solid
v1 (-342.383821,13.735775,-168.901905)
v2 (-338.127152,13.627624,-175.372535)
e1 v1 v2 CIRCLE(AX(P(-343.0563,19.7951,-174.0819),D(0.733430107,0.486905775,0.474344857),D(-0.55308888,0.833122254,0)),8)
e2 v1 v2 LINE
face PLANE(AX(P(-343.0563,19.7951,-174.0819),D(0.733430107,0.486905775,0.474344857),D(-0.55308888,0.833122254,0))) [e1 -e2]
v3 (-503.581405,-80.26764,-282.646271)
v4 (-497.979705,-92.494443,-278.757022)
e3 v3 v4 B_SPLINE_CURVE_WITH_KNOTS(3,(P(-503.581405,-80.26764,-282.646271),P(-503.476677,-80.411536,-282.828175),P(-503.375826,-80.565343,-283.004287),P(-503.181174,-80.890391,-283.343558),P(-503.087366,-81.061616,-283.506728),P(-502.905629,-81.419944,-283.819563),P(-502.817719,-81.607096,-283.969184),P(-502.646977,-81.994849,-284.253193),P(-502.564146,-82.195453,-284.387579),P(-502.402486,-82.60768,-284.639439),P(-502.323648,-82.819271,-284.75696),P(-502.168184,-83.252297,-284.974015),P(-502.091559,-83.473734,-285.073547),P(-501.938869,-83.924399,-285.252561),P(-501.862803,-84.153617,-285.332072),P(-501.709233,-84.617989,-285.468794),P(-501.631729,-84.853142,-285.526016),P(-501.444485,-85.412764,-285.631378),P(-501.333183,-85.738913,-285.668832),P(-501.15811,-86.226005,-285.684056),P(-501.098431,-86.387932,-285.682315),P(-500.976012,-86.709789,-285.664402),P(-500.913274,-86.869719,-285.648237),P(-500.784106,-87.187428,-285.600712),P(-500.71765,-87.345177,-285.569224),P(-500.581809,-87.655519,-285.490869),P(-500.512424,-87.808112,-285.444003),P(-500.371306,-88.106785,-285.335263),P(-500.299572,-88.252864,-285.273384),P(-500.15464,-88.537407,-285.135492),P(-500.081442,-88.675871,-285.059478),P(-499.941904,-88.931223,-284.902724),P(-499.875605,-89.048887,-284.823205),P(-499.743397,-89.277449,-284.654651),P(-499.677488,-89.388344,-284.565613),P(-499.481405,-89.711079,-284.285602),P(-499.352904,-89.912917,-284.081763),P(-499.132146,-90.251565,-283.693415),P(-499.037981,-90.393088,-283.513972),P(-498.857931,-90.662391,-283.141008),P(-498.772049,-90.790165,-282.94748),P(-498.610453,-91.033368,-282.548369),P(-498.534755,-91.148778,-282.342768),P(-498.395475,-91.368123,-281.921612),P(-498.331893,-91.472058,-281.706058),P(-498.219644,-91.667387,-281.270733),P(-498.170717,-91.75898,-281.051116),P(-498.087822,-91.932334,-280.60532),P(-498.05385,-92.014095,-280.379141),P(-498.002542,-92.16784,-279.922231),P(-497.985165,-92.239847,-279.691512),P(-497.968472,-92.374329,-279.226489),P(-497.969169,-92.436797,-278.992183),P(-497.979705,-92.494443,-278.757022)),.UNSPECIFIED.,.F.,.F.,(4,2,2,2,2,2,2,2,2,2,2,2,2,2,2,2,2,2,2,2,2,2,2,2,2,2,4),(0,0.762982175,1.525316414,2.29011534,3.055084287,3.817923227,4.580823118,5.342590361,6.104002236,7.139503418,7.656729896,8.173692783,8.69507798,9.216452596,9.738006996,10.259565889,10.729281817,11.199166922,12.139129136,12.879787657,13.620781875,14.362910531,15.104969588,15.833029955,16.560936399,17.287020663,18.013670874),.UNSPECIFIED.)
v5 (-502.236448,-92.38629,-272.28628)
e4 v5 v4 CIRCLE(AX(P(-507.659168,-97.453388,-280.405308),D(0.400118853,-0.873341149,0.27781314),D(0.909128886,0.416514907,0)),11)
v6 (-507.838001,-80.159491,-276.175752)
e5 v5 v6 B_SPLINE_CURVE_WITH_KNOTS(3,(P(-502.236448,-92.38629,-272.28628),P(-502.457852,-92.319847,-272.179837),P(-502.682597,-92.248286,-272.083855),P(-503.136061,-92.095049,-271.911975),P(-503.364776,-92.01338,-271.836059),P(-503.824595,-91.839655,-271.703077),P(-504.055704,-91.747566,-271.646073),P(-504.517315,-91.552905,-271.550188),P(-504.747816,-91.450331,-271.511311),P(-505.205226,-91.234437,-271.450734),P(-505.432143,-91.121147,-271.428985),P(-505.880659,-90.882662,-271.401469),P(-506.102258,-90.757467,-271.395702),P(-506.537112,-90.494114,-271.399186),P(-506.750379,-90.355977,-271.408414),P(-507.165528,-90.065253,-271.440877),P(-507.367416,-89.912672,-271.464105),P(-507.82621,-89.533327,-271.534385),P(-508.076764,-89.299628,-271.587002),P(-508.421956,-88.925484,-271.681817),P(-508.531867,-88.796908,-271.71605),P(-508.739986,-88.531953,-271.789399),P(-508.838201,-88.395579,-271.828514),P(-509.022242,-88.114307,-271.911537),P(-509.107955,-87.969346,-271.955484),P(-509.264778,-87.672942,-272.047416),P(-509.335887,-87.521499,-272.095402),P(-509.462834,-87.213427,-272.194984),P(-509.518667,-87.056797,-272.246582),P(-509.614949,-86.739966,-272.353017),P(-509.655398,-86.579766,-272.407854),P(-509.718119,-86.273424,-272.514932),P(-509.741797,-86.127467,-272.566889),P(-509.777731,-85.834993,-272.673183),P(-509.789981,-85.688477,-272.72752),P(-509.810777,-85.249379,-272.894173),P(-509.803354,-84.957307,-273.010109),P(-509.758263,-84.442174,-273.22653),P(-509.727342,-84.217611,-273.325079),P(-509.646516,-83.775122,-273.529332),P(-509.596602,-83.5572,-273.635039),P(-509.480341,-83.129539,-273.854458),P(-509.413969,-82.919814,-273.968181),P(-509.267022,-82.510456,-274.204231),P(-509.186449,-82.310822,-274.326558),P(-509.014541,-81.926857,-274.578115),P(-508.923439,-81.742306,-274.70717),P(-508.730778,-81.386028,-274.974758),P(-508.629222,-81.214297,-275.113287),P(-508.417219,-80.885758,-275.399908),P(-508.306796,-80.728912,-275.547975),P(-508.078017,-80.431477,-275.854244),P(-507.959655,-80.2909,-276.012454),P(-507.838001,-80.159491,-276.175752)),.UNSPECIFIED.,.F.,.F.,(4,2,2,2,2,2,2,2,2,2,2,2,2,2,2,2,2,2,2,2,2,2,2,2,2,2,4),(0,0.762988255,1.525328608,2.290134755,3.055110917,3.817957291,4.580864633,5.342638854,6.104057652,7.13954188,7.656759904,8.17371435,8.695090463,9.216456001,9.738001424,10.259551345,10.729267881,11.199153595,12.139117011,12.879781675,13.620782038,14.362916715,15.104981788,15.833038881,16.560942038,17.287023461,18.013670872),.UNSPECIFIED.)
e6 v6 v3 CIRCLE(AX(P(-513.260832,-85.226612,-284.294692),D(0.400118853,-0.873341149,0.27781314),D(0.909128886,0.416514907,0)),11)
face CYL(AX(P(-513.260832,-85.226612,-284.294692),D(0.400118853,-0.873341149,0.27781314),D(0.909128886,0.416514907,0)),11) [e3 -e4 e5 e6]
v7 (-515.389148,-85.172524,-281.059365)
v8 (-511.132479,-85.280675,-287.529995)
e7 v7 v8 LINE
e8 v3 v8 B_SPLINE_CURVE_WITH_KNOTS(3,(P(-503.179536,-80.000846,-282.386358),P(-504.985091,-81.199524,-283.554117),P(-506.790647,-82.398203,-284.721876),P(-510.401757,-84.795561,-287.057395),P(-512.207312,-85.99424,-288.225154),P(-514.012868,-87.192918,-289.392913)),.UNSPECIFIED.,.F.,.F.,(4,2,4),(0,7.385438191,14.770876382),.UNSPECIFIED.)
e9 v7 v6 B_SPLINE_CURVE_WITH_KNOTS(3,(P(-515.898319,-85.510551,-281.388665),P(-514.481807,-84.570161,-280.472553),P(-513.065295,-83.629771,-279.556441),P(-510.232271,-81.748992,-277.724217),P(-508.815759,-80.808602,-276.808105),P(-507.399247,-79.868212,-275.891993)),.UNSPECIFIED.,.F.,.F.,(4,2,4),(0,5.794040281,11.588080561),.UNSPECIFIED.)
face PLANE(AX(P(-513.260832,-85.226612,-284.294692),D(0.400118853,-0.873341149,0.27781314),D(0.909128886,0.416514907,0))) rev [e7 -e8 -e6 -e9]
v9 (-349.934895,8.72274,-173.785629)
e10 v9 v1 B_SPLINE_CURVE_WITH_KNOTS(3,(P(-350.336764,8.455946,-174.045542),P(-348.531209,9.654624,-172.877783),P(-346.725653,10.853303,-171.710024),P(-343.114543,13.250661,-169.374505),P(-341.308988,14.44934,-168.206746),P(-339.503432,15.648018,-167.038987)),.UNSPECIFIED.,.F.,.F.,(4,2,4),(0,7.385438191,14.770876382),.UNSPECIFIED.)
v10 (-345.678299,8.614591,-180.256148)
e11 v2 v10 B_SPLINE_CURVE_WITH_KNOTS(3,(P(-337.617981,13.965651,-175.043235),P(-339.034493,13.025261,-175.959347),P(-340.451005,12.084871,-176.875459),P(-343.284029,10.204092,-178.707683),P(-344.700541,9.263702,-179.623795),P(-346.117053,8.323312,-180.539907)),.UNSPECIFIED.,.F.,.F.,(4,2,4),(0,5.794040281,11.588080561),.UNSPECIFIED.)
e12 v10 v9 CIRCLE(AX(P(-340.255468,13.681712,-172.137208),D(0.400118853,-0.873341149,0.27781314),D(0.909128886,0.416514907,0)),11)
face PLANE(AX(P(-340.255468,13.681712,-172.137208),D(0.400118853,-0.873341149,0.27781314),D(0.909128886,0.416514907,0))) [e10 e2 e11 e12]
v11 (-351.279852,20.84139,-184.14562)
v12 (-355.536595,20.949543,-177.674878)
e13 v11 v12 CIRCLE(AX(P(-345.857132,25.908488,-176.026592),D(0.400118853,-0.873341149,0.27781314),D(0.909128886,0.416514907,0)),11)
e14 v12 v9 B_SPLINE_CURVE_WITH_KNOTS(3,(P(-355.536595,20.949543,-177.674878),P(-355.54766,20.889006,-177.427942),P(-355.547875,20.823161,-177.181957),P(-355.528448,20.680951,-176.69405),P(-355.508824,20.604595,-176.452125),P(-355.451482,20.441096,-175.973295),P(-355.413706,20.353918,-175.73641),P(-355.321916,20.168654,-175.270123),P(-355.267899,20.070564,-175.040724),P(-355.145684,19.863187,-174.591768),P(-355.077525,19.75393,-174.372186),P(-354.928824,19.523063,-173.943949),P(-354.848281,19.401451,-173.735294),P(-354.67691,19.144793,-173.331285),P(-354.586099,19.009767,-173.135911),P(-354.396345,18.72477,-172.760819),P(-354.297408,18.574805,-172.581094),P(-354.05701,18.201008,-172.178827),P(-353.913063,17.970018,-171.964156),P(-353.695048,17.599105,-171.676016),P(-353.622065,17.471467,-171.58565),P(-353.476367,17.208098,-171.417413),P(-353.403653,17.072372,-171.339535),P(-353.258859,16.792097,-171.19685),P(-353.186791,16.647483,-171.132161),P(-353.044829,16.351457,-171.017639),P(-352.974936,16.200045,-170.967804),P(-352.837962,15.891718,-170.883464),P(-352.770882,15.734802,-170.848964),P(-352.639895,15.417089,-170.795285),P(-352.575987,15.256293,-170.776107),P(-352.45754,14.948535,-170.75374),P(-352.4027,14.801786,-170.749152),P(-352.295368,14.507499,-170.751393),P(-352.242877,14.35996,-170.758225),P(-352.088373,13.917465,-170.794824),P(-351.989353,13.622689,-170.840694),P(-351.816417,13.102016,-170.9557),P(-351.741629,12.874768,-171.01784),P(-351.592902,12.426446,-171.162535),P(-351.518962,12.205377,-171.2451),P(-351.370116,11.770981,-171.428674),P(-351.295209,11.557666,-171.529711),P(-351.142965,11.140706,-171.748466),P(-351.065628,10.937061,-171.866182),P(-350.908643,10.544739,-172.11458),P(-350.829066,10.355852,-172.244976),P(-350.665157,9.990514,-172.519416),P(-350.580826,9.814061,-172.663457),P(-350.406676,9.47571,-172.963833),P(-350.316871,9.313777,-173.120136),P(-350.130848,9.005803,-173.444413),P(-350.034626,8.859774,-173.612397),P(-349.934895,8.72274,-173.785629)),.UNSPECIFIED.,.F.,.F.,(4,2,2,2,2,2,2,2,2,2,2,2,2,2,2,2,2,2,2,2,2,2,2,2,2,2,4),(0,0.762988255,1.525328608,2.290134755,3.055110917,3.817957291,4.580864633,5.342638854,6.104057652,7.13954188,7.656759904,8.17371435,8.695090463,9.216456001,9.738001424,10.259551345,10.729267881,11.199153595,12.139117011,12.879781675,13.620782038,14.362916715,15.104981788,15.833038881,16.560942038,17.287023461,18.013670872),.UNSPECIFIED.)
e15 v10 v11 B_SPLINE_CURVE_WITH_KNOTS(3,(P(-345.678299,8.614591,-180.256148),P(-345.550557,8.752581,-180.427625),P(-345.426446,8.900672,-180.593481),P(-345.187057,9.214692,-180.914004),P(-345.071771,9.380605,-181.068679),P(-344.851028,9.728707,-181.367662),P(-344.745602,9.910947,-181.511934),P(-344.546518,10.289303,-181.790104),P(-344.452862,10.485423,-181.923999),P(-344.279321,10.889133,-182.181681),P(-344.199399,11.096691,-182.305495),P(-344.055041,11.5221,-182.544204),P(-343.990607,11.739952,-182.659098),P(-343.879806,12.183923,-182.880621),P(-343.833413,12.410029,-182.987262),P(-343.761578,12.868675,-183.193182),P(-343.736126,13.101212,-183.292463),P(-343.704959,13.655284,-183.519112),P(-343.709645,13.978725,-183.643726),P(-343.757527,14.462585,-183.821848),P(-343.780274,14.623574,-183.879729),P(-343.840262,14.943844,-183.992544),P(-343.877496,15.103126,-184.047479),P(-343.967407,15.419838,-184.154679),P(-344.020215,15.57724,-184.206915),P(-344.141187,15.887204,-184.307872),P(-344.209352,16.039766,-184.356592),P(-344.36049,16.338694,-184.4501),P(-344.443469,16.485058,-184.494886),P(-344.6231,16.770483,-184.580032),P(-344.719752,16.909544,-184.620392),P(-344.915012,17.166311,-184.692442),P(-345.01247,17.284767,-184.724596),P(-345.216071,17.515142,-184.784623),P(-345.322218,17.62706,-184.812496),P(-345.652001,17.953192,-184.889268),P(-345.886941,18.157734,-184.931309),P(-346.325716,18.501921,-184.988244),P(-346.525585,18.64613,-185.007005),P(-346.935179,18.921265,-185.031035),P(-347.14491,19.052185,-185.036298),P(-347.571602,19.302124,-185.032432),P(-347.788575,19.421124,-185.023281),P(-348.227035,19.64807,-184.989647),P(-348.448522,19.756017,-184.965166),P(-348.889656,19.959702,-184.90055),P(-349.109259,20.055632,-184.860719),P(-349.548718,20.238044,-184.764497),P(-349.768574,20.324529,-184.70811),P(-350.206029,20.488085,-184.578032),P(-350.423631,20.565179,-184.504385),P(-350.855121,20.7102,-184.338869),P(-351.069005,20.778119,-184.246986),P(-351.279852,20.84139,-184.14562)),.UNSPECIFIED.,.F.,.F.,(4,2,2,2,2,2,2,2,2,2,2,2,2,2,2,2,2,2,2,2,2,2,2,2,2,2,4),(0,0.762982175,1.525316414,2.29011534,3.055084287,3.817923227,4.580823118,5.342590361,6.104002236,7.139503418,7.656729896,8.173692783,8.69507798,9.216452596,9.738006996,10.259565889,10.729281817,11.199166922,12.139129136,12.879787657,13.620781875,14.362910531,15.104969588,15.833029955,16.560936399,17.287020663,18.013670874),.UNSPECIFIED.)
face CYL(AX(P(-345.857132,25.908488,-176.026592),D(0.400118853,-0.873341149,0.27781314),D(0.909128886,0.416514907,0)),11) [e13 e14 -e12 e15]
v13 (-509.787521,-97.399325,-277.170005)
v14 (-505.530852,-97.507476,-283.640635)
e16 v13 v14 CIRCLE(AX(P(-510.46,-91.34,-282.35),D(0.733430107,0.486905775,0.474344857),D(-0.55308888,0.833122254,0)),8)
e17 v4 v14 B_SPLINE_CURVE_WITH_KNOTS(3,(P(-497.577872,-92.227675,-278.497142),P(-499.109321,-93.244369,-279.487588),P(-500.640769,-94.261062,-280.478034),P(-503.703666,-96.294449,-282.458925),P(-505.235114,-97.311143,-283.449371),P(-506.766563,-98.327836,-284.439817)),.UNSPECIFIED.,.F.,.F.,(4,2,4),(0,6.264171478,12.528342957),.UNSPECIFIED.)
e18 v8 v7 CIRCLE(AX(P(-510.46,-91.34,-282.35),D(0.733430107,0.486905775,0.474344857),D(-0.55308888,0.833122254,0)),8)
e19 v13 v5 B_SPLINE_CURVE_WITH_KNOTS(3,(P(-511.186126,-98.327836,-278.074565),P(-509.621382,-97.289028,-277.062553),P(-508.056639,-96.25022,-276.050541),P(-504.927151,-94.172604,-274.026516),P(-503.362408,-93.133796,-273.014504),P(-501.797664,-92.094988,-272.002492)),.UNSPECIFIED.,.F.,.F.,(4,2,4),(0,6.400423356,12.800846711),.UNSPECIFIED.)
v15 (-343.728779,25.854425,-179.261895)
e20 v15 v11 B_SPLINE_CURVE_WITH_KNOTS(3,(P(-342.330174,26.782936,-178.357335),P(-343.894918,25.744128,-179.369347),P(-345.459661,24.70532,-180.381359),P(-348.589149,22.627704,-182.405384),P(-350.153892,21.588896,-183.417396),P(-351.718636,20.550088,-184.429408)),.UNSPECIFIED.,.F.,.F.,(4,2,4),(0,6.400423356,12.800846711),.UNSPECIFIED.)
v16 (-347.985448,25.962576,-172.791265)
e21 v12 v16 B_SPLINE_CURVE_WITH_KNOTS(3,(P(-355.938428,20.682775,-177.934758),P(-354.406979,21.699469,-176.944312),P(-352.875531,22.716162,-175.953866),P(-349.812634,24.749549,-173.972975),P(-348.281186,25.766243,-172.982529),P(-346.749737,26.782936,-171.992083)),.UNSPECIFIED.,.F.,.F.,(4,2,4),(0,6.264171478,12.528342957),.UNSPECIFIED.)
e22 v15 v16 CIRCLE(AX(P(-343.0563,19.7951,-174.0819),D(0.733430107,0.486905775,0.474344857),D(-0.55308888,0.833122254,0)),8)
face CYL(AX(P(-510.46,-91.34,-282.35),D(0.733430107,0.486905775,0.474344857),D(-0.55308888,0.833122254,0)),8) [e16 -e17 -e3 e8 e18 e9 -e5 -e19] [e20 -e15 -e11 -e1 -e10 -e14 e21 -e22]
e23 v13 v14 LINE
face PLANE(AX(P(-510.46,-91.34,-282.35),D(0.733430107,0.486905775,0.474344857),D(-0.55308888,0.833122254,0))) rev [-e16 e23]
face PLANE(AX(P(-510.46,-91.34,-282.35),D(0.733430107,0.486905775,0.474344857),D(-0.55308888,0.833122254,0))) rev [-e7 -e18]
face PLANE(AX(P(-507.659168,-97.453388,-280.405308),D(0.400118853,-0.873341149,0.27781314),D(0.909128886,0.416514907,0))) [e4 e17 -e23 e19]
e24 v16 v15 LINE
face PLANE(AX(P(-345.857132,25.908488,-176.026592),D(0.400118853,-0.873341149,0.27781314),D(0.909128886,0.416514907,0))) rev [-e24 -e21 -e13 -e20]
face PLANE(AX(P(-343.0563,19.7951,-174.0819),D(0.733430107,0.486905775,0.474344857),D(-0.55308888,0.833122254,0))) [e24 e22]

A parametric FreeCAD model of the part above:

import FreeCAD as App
import Part
import Sketcher

V = App.Vector
Q = App.Units.Quantity

doc = App.newDocument("Part")
body = doc.addObject("PartDesign::Body", "Body")

# Sketch on an angled plane
sketch1 = doc.addObject("Sketcher::SketchObject", "Sketch")
body.addObject(sketch1)
sketch1.Placement = App.Placement(V(-510.46, -91.34, -282.35), App.Rotation(V(-0.55308888, 0.833122254, 0), V(-0.395187256, -0.262354866, 0.880339114), V(0.733430107, 0.486905775, 0.474344857), "ZXY"))
sketch1.addGeometry(Part.Circle(V(0, 0, 0), V(0, 0, 1), 8), False)
sketch1.addConstraint(Sketcher.Constraint("Coincident", 0, 3, -1, 1))
sketch1.addConstraint(Sketcher.Constraint("Diameter", 0, Q("16 mm")))

# Sketch on an angled plane
sketch2 = doc.addObject("Sketcher::SketchObject", "Sketch001")
body.addObject(sketch2)
sketch2.Placement = App.Placement(V(-114.064827, 171.816771, 0), App.Rotation(V(0.833122254, 0.55308888, 0), V(0, 0, 0.999999999), V(0.55308888, -0.833122254, 0), "ZXY"))
sketch2.addGeometry(Part.LineSegment(V(-476, -282, 0), V(-275, -174, 0)), False)
sketch2.addConstraint(Sketcher.Constraint("DistanceY", 0, 1, -1, 1, Q("282.35 mm")))
sketch2.addConstraint(Sketcher.Constraint("DistanceY", 0, 2, -1, 1, Q("174.0819 mm")))
sketch2.addConstraint(Sketcher.Constraint("Distance", 0, Q("228.247652 mm")))
sketch2.addConstraint(Sketcher.Constraint("DistanceX", 0, 2, -1, 1, Q("274.859388 mm")))
doc.recompute()

additivepipe = doc.addObject("PartDesign::AdditivePipe", "AdditivePipe")
body.addObject(additivepipe)
additivepipe.Profile = sketch1
additivepipe.Spine = (sketch2, ["Edge1"])

# Sketch on an angled plane
sketch3 = doc.addObject("Sketcher::SketchObject", "Sketch002")
body.addObject(sketch3)
sketch3.Placement = App.Placement(V(-513.260832, -85.226612, -284.294692), App.Rotation(V(-0.909128886, -0.416514907, 0), V(0.115713314, -0.25256795, -0.960635133), V(0.400118853, -0.873341149, 0.27781314), "ZXY"))
sketch3.addGeometry(Part.Circle(V(0, 0, 0), V(0, 0, 1), 11), False)
sketch3.addConstraint(Sketcher.Constraint("Coincident", 0, 3, -1, 1))
sketch3.addConstraint(Sketcher.Constraint("Diameter", 0, Q("22 mm")))

# Sketch on an angled plane
sketch4 = doc.addObject("Sketcher::SketchObject", "Sketch003")
body.addObject(sketch4)
sketch4.Placement = App.Placement(V(-456.490345, -209.1398, 0), App.Rotation(V(0.416514907, -0.909128886, 0), V(0, 0, 0.999999999), V(-0.909128886, -0.416514907, 0), "ZXY"))
sketch4.addGeometry(Part.LineSegment(V(-136, -284, 0), V(-123, -280, 0)), False)
sketch4.addConstraint(Sketcher.Constraint("Distance", 0, Q("14 mm")))
sketch4.addConstraint(Sketcher.Constraint("DistanceY", 0, 1, -1, 1, Q("284.294691 mm")))
sketch4.addConstraint(Sketcher.Constraint("DistanceX", 0, 2, -1, 1, Q("122.849921 mm")))
sketch4.addConstraint(Sketcher.Constraint("DistanceX", 0, 1, 0, 2, Q("13.448892 mm")))
doc.recompute()

additivepipe2 = doc.addObject("PartDesign::AdditivePipe", "AdditivePipe001")
body.addObject(additivepipe2)
additivepipe2.Profile = sketch3
additivepipe2.Spine = (sketch4, ["Edge1"])

# Sketch on an angled plane
sketch5 = doc.addObject("Sketcher::SketchObject", "Sketch004")
body.addObject(sketch5)
sketch5.Placement = App.Placement(V(-345.857132, 25.908488, -176.026592), App.Rotation(V(-0.909128886, -0.416514907, 0), V(0.115713314, -0.25256795, -0.960635133), V(0.400118853, -0.873341149, 0.27781314), "ZXY"))
sketch5.addGeometry(Part.Circle(V(0, 0, 0), V(0, 0, 1), 11), False)
sketch5.addConstraint(Sketcher.Constraint("Coincident", 0, 3, -1, 1))
sketch5.addConstraint(Sketcher.Constraint("Diameter", 0, Q("22 mm")))

# Sketch on an angled plane
sketch6 = doc.addObject("Sketcher::SketchObject", "Sketch005")
body.addObject(sketch6)
sketch6.Placement = App.Placement(V(-276.045566, -126.469519, 0), App.Rotation(V(0.416514907, -0.909128886, 0), V(0, 0, 0.999999999), V(-0.909128886, -0.416514907, 0), "ZXY"))
sketch6.addGeometry(Part.LineSegment(V(-168, -176, 0), V(-154, -172, 0)), False)
sketch6.addConstraint(Sketcher.Constraint("Distance", 0, Q("14 mm")))
sketch6.addConstraint(Sketcher.Constraint("DistanceY", 0, 1, -1, 1, Q("176.026592 mm")))
sketch6.addConstraint(Sketcher.Constraint("DistanceX", 0, 1, 0, 2, Q("13.448892 mm")))
sketch6.addConstraint(Sketcher.Constraint("DistanceX", 0, 1, -1, 1, Q("167.608806 mm")))
doc.recompute()

additivepipe3 = doc.addObject("PartDesign::AdditivePipe", "AdditivePipe002")
body.addObject(additivepipe3)
additivepipe3.Profile = sketch5
additivepipe3.Spine = (sketch6, ["Edge1"])

doc.recompute()
